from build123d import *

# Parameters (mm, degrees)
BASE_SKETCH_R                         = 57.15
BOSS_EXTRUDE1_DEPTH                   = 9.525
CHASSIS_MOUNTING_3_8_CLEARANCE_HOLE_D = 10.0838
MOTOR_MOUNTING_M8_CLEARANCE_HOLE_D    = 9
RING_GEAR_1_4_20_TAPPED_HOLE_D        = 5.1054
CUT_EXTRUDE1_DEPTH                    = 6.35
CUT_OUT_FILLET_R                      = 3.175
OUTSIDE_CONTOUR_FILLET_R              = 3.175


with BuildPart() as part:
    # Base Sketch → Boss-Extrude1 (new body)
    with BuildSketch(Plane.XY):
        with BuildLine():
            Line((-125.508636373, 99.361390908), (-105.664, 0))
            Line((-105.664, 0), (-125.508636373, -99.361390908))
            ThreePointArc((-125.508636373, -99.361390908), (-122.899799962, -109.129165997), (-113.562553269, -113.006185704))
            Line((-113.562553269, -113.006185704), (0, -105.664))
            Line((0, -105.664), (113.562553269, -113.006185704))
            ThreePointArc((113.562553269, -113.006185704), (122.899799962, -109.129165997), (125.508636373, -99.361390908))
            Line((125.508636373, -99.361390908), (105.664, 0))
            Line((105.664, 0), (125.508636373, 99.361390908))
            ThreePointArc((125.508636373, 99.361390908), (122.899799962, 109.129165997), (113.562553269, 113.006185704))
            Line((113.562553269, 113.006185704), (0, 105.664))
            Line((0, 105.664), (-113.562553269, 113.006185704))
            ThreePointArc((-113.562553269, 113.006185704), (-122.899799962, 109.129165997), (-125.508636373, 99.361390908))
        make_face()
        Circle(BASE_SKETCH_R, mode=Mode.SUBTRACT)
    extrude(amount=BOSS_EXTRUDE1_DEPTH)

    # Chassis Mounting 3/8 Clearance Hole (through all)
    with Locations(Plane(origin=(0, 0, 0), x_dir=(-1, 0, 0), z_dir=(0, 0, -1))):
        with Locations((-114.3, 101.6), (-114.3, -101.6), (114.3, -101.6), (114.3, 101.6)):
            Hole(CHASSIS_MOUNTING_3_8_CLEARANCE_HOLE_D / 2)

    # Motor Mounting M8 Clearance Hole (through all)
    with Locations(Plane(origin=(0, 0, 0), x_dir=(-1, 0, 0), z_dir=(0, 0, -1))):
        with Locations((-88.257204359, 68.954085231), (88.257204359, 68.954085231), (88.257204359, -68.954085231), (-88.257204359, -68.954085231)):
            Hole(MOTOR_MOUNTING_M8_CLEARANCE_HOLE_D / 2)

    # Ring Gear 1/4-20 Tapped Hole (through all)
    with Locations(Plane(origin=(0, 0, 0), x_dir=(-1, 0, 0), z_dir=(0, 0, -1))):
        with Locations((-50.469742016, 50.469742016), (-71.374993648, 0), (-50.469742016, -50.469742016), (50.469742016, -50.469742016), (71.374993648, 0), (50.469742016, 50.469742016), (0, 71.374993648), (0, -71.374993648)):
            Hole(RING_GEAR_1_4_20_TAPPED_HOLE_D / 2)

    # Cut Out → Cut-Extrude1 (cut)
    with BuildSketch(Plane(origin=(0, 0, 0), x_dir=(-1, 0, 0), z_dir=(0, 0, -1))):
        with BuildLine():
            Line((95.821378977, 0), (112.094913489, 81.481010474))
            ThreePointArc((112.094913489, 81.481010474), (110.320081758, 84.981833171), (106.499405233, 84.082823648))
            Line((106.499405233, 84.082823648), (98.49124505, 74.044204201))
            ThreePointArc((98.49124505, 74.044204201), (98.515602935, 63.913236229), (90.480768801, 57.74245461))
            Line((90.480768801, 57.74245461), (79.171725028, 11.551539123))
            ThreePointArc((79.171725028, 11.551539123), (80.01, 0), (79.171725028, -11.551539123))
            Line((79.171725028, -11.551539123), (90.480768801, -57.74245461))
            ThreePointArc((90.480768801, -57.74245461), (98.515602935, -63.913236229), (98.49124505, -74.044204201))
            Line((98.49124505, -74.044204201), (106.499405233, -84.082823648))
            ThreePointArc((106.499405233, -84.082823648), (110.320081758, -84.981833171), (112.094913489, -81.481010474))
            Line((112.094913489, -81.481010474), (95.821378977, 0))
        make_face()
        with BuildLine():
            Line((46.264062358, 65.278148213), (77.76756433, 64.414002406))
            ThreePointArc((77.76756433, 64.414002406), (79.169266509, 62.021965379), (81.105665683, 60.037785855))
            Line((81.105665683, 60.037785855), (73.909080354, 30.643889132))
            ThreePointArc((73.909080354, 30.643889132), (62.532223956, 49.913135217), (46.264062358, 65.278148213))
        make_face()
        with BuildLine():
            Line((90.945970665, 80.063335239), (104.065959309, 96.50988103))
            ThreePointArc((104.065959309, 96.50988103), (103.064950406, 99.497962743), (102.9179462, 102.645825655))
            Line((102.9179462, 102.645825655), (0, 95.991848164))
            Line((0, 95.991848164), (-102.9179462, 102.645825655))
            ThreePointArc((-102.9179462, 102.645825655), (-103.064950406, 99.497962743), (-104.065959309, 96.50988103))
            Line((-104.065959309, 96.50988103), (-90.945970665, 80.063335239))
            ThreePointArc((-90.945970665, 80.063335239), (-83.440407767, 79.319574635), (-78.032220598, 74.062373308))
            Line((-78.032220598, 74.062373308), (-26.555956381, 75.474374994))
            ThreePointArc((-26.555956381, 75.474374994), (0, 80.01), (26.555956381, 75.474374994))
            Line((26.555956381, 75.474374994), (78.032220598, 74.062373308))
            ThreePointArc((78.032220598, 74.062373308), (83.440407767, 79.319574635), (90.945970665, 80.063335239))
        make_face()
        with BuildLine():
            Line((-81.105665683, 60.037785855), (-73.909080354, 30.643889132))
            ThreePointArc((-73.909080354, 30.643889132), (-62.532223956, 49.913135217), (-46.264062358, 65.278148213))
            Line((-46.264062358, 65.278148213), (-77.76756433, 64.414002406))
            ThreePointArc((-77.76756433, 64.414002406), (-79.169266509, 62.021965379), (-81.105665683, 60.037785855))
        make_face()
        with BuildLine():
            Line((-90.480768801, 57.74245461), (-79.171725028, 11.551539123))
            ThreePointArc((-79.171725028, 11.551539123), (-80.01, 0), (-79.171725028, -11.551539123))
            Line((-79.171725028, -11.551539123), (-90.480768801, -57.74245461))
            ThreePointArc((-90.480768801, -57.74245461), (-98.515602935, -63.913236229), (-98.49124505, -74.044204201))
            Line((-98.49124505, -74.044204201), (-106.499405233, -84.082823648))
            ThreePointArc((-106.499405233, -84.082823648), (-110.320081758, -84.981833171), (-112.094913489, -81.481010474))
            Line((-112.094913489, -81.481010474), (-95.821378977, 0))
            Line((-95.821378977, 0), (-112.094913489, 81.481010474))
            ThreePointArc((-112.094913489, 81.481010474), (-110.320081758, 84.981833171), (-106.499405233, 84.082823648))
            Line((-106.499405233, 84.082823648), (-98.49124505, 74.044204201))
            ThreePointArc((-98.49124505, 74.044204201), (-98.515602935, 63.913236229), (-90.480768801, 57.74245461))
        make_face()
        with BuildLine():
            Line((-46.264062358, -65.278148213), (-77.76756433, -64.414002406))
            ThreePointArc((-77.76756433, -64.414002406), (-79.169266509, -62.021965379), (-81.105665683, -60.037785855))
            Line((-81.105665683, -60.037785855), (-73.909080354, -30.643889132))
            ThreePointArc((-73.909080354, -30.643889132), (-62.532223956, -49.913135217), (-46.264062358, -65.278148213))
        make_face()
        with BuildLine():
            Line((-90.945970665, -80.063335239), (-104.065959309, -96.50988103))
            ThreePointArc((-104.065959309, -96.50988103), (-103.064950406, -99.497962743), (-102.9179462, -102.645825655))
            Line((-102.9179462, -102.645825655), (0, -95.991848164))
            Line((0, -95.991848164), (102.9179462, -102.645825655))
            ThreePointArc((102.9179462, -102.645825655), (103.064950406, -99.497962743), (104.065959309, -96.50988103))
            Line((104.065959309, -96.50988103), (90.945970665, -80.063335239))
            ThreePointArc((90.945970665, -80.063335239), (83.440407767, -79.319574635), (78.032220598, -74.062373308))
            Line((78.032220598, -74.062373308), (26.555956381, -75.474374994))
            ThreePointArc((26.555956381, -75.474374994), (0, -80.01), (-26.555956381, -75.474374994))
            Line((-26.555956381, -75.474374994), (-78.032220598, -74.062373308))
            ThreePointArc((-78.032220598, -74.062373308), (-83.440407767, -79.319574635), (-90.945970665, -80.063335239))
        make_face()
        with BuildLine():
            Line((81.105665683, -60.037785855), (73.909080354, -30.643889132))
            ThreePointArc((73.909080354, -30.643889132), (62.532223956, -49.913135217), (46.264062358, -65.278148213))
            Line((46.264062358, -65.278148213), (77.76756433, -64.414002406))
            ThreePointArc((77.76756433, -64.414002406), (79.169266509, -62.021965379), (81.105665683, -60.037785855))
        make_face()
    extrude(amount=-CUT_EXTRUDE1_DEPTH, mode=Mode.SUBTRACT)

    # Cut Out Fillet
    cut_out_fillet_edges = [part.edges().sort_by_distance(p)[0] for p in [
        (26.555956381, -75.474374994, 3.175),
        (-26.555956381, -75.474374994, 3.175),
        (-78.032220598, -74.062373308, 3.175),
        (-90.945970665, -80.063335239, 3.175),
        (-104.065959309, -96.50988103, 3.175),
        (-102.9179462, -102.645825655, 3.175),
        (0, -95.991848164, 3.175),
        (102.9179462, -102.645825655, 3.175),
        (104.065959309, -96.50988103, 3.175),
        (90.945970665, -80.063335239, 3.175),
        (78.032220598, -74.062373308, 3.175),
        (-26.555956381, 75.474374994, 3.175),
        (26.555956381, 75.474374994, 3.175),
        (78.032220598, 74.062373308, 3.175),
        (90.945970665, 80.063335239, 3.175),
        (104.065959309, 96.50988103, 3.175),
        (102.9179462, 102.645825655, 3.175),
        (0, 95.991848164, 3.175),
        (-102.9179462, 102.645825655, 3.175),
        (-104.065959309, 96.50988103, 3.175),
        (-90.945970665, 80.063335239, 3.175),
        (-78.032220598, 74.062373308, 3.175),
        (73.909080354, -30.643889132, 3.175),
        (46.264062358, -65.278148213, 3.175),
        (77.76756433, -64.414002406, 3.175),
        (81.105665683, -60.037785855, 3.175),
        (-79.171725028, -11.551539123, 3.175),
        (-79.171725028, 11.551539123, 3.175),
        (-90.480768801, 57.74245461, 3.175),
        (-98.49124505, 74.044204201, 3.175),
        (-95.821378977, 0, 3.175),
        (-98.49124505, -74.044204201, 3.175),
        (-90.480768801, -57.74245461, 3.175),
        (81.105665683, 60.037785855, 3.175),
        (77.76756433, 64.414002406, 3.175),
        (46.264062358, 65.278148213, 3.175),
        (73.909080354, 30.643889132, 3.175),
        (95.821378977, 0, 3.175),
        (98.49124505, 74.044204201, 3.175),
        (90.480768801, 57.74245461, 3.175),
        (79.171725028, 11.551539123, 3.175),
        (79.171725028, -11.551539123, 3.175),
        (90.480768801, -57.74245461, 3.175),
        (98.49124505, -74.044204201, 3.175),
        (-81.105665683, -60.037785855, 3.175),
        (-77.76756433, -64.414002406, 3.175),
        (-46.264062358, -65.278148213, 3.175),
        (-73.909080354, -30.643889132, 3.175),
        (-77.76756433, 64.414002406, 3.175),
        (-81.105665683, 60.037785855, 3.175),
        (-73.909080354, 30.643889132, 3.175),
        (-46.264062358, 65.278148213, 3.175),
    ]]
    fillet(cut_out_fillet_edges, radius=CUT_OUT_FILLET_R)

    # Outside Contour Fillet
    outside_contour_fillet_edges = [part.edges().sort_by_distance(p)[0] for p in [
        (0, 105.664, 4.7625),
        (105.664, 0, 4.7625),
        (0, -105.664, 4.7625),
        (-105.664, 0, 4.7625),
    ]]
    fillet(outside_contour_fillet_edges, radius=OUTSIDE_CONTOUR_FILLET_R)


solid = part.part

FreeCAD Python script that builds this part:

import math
import FreeCAD as App
import Part
import Sketcher
from FreeCAD import Vector
Q = App.Units.Quantity


def edges_at(feature, points):
    """Names of the edges that pass closest to the given points."""
    edges = feature.Shape.Edges
    near = lambda p: min(range(len(edges)), key=lambda i: edges[i].distToShape(Part.Vertex(*p))[0])
    return sorted({f"Edge{near(p) + 1}" for p in points})

doc = App.newDocument("Part")
params = doc.addObject("Spreadsheet::Sheet", "Params")
for row, (alias, value) in enumerate([
    ("sketch1_diameter", "4.5 in"),
    ("sketch1_radius", "0.45 in"),
    ("pad1_length", "0.375 in"),
    ("sketch2_diameter", "0.397 in"),
    ("hole_diameter", "0.397 in"),
    ("hole2_diameter", "9 mm"),
    ("sketch4_diameter", "0.201 in"),
    ("hole3_diameter", "0.201 in"),
    ("sketch5_radius", "0.45 in"),
    ("sketch5_radius2", "3.15 in"),
    ("sketch5_radius3", "0.125 in"),
    ("pocket1_length", "0.25 in"),
    ("fillet_radius", "0.125 in"),
    ("fillet2_radius", "0.125 in"),
], start=1):
    params.set(f"A{row}", alias)
    params.set(f"B{row}", "=" + value)
    params.setAlias(f"B{row}", alias)

body = doc.addObject("PartDesign::Body", "Body")

# Sketch on XY plane
sketch1 = body.newObject("Sketcher::SketchObject", "Sketch")
sketch1.AttachmentSupport = (doc.getObject("XY_Plane"), [""])
sketch1.MapMode = "FlatFace"
sketch1.addGeometry([
    Part.LineSegment(Vector(-125.508636, 99.361391, 0), Vector(-105.664, 0, 0)),  # 0
    Part.LineSegment(Vector(-105.664, 0, 0), Vector(-125.508636, -99.361391, 0)),  # 1
    Part.ArcOfCircle(Part.Circle(Vector(-114.3, -101.6, 0), Vector(0, 0, 1), 11.43), math.radians(168.705395), math.radians(273.699209)),  # 2
    Part.LineSegment(Vector(-113.562553, -113.006186, 0), Vector(0, -105.664, 0)),  # 3
    Part.LineSegment(Vector(0, -105.664, 0), Vector(113.562553, -113.006186, 0)),  # 4
    Part.ArcOfCircle(Part.Circle(Vector(114.3, -101.6, 0), Vector(0, 0, 1), 11.43), math.radians(-93.699209), math.radians(11.294605)),  # 5
    Part.LineSegment(Vector(125.508636, -99.361391, 0), Vector(105.664, 0, 0)),  # 6
    Part.LineSegment(Vector(105.664, 0, 0), Vector(125.508636, 99.361391, 0)),  # 7
    Part.ArcOfCircle(Part.Circle(Vector(114.3, 101.6, 0), Vector(0, 0, 1), 11.43), math.radians(-11.294605), math.radians(93.699209)),  # 8
    Part.LineSegment(Vector(113.562553, 113.006186, 0), Vector(0, 105.664, 0)),  # 9
    Part.LineSegment(Vector(0, 105.664, 0), Vector(-113.562553, 113.006186, 0)),  # 10
    Part.ArcOfCircle(Part.Circle(Vector(-114.3, 101.6, 0), Vector(0, 0, 1), 11.43), math.radians(86.300791), math.radians(191.294605)),  # 11
    Part.Circle(Vector(0, 0, 0), Vector(0, 0, 1), 57.15),  # 12
], False)
sketch1.addConstraint([
    Sketcher.Constraint("Coincident", 0, 2, 1, 1),
    Sketcher.Constraint("Tangent", 1, 2, 2, 1),
    Sketcher.Constraint("Tangent", 2, 2, 3, 1),
    Sketcher.Constraint("Coincident", 3, 2, 4, 1),
    Sketcher.Constraint("Tangent", 4, 2, 5, 1),
    Sketcher.Constraint("Tangent", 5, 2, 6, 1),
    Sketcher.Constraint("Coincident", 6, 2, 7, 1),
    Sketcher.Constraint("Tangent", 7, 2, 8, 1),
    Sketcher.Constraint("Tangent", 8, 2, 9, 1),
    Sketcher.Constraint("Coincident", 9, 2, 10, 1),
    Sketcher.Constraint("Tangent", 10, 2, 11, 1),
    Sketcher.Constraint("Tangent", 11, 2, 0, 1),
    Sketcher.Constraint("Coincident", 12, 3, -1, 1),
    Sketcher.Constraint("Equal", 2, 5),
    Sketcher.Constraint("Equal", 5, 8),
    Sketcher.Constraint("Equal", 8, 11),
    Sketcher.Constraint("Symmetric", 2, 3, 8, 3, -1, 1),
    Sketcher.Constraint("Symmetric", 5, 3, 11, 3, -1, 1),
    Sketcher.Constraint("Symmetric", 0, 2, 6, 2, -1, 1),
    Sketcher.Constraint("Symmetric", 3, 2, 9, 2, -1, 1),
    Sketcher.Constraint("Symmetric", 2, 3, 5, 3, -2),
    Sketcher.Constraint("PointOnObject", 0, 2, -1),
    Sketcher.Constraint("PointOnObject", 3, 2, -2),
    Sketcher.Constraint("Diameter", 12, Q("4.5 in")),
    Sketcher.Constraint("Radius", 2, Q("0.45 in")),
    Sketcher.Constraint("DistanceY", 2, 3, -1, 1, Q("4 in")),
    Sketcher.Constraint("DistanceX", 2, 3, 5, 3, Q("9 in")),
    Sketcher.Constraint("DistanceX", 0, 2, -1, 1, Q("4.16 in")),
    Sketcher.Constraint("DistanceY", 3, 2, -1, 1, Q("4.16 in")),
])
sketch1.setExpression("Constraints[23]", "Params.sketch1_diameter")
sketch1.setExpression("Constraints[24]", "Params.sketch1_radius")
pad1 = body.newObject("PartDesign::Pad", "Pad")
pad1.Profile = sketch1
pad1.setExpression("Length", "Params.pad1_length")

# Sketch on XY plane
sketch2 = body.newObject("Sketcher::SketchObject", "Sketch001")
sketch2.AttachmentSupport = (doc.getObject("XY_Plane"), [""])
sketch2.MapMode = "FlatFace"
sketch2.addGeometry([
    Part.Circle(Vector(114.3, 101.6, 0), Vector(0, 0, 1), 5.0419),
    Part.Circle(Vector(114.3, -101.6, 0), Vector(0, 0, 1), 5.0419),
    Part.Circle(Vector(-114.3, -101.6, 0), Vector(0, 0, 1), 5.0419),
    Part.Circle(Vector(-114.3, 101.6, 0), Vector(0, 0, 1), 5.0419),
], False)
sketch2.addConstraint([
    Sketcher.Constraint("Equal", 0, 1),
    Sketcher.Constraint("Equal", 1, 2),
    Sketcher.Constraint("Equal", 2, 3),
    Sketcher.Constraint("Symmetric", 0, 3, 2, 3, -1, 1),
    Sketcher.Constraint("Symmetric", 1, 3, 3, 3, -1, 1),
    Sketcher.Constraint("Symmetric", 1, 3, 2, 3, -2),
    Sketcher.Constraint("Diameter", 0, Q("0.397 in")),
    Sketcher.Constraint("DistanceY", -1, 1, 0, 3, Q("4 in")),
    Sketcher.Constraint("DistanceX", 2, 3, 1, 3, Q("9 in")),
])
sketch2.setExpression("Constraints[6]", "Params.sketch2_diameter")
doc.recompute()
hole = body.newObject("PartDesign::Hole", "Hole")
hole.Profile = sketch2
hole.ThreadType = "None"
hole.setExpression("Diameter", "Params.hole_diameter")
hole.DepthType = "ThroughAll"
hole.Reversed = True

# Sketch on XY plane
sketch3 = body.newObject("Sketcher::SketchObject", "Sketch002")
sketch3.AttachmentSupport = (doc.getObject("XY_Plane"), [""])
sketch3.MapMode = "FlatFace"
sketch3.addGeometry([
    Part.Circle(Vector(88.257204, 68.954085, 0), Vector(0, 0, 1), 4.5),
    Part.Circle(Vector(-88.257204, 68.954085, 0), Vector(0, 0, 1), 4.5),
    Part.Circle(Vector(-88.257204, -68.954085, 0), Vector(0, 0, 1), 4.5),
    Part.Circle(Vector(88.257204, -68.954085, 0), Vector(0, 0, 1), 4.5),
], False)
sketch3.addConstraint([
    Sketcher.Constraint("Equal", 0, 1),
    Sketcher.Constraint("Equal", 1, 2),
    Sketcher.Constraint("Equal", 2, 3),
    Sketcher.Constraint("Symmetric", 0, 3, 2, 3, -1, 1),
    Sketcher.Constraint("Symmetric", 1, 3, 3, 3, -1, 1),
    Sketcher.Constraint("Symmetric", 0, 3, 1, 3, -2),
    Sketcher.Constraint("Diameter", 0, 9.0),
    Sketcher.Constraint("DistanceX", 1, 3, 0, 3, 176.514409),
    Sketcher.Constraint("DistanceY", 2, 3, 1, 3, 137.90817),
])
doc.recompute()
hole2 = body.newObject("PartDesign::Hole", "Hole001")
hole2.Profile = sketch3
hole2.ThreadType = "None"
hole2.setExpression("Diameter", "Params.hole2_diameter")
hole2.DepthType = "ThroughAll"
hole2.Reversed = True

# Sketch on XY plane
sketch4 = body.newObject("Sketcher::SketchObject", "Sketch003")
sketch4.AttachmentSupport = (doc.getObject("XY_Plane"), [""])
sketch4.MapMode = "FlatFace"
sketch4.addGeometry([
    Part.Circle(Vector(50.469742, 50.469742, 0), Vector(0, 0, 1), 2.5527),  # 0
    Part.Circle(Vector(71.374994, 0, 0), Vector(0, 0, 1), 2.5527),  # 1
    Part.Circle(Vector(50.469742, -50.469742, 0), Vector(0, 0, 1), 2.5527),  # 2
    Part.Circle(Vector(-50.469742, -50.469742, 0), Vector(0, 0, 1), 2.5527),  # 3
    Part.Circle(Vector(-71.374994, 0, 0), Vector(0, 0, 1), 2.5527),  # 4
    Part.Circle(Vector(-50.469742, 50.469742, 0), Vector(0, 0, 1), 2.5527),  # 5
    Part.Circle(Vector(0, 71.374994, 0), Vector(0, 0, 1), 2.5527),  # 6
    Part.Circle(Vector(0, -71.374994, 0), Vector(0, 0, 1), 2.5527),  # 7
], False)
sketch4.addConstraint([
    Sketcher.Constraint("Equal", 0, 1),
    Sketcher.Constraint("Equal", 1, 2),
    Sketcher.Constraint("Equal", 2, 3),
    Sketcher.Constraint("Equal", 3, 4),
    Sketcher.Constraint("Equal", 4, 5),
    Sketcher.Constraint("Equal", 5, 6),
    Sketcher.Constraint("Equal", 6, 7),
    Sketcher.Constraint("Symmetric", 0, 3, 3, 3, -1, 1),
    Sketcher.Constraint("Symmetric", 1, 3, 4, 3, -1, 1),
    Sketcher.Constraint("Symmetric", 2, 3, 5, 3, -1, 1),
    Sketcher.Constraint("Symmetric", 6, 3, 7, 3, -1, 1),
    Sketcher.Constraint("Symmetric", 2, 3, 3, 3, -2),
    Sketcher.Constraint("PointOnObject", 1, 3, -1),
    Sketcher.Constraint("PointOnObject", 6, 3, -2),
    Sketcher.Constraint("Diameter", 0, Q("0.201 in")),
    Sketcher.Constraint("DistanceX", 0, 3, 1, 3, 20.905252),
    Sketcher.Constraint("DistanceY", 0, 3, 6, 3, 20.905252),
    Sketcher.Constraint("DistanceX", -1, 1, 0, 3, 50.469742),
    Sketcher.Constraint("DistanceY", -1, 1, 0, 3, 50.469742),
])
sketch4.setExpression("Constraints[14]", "Params.sketch4_diameter")
doc.recompute()
hole3 = body.newObject("PartDesign::Hole", "Hole002")
hole3.Profile = sketch4
hole3.ThreadType = "None"
hole3.setExpression("Diameter", "Params.hole3_diameter")
hole3.DepthType = "ThroughAll"
hole3.Reversed = True

# Sketch on XY plane
sketch5 = body.newObject("Sketcher::SketchObject", "Sketch004")
sketch5.AttachmentSupport = (doc.getObject("XY_Plane"), [""])
sketch5.MapMode = "FlatFace"
sketch5.addGeometry([
    Part.LineSegment(Vector(-95.821379, 0, 0), Vector(-112.094913, 81.48101, 0)),  # 0
    Part.ArcOfCircle(Part.Circle(Vector(-108.981403, 82.102846, 0), Vector(0, 0, 1), 3.175), math.radians(38.580597), math.radians(191.294605)),  # 1
    Part.LineSegment(Vector(-106.499405, 84.082824, 0), Vector(-98.491245, 74.044204, 0)),  # 2
    Part.ArcOfCircle(Part.Circle(Vector(-88.257204, 68.954085, 0), Vector(0, 0, 1), 11.43), math.radians(153.555562), math.radians(258.782289)),  # 3
    Part.LineSegment(Vector(-90.480769, 57.742455, 0), Vector(-79.171725, 11.551539, 0)),  # 4
    Part.ArcOfCircle(Part.Circle(Vector(0, 0, 0), Vector(0, 0, 1), 80.01), math.radians(171.698842), math.radians(188.301158)),  # 5
    Part.LineSegment(Vector(-79.171725, -11.551539, 0), Vector(-90.480769, -57.742455, 0)),  # 6
    Part.ArcOfCircle(Part.Circle(Vector(-88.257204, -68.954085, 0), Vector(0, 0, 1), 11.43), math.radians(101.217711), math.radians(206.444438)),  # 7
    Part.LineSegment(Vector(-98.491245, -74.044204, 0), Vector(-106.499405, -84.082824, 0)),  # 8
    Part.ArcOfCircle(Part.Circle(Vector(-108.981403, -82.102846, 0), Vector(0, 0, 1), 3.175), math.radians(168.705395), math.radians(321.419403)),  # 9
    Part.LineSegment(Vector(-112.094913, -81.48101, 0), Vector(-95.821379, 0, 0)),  # 10
    Part.LineSegment(Vector(-77.767564, 64.414002, 0), Vector(-46.264062, 65.278148, 0)),  # 11
    Part.ArcOfCircle(Part.Circle(Vector(0, 0, 0), Vector(0, 0, 1), 80.01), math.radians(125.326041), math.radians(157.48032)),  # 12
    Part.LineSegment(Vector(-73.90908, 30.643889, 0), Vector(-81.105666, 60.037786, 0)),  # 13
    Part.ArcOfCircle(Part.Circle(Vector(-88.257204, 68.954085, 0), Vector(0, 0, 1), 11.43), math.radians(-51.26778), math.radians(-23.403727)),  # 14
    Part.LineSegment(Vector(-90.945971, 80.063335, 0), Vector(-104.065959, 96.509881, 0)),  # 15
    Part.ArcOfCircle(Part.Circle(Vector(-114.3, 101.6, 0), Vector(0, 0, 1), 11.43), math.radians(-26.444438), math.radians(5.249809)),  # 16
    Part.LineSegment(Vector(-102.917946, 102.645826, 0), Vector(0, 95.991848, 0)),  # 17
    Part.LineSegment(Vector(0, 95.991848, 0), Vector(102.917946, 102.645826, 0)),  # 18
    Part.ArcOfCircle(Part.Circle(Vector(114.3, 101.6, 0), Vector(0, 0, 1), 11.43), math.radians(174.750191), math.radians(206.444438)),  # 19
    Part.LineSegment(Vector(104.065959, 96.509881, 0), Vector(90.945971, 80.063335, 0)),  # 20
    Part.ArcOfCircle(Part.Circle(Vector(88.257204, 68.954085, 0), Vector(0, 0, 1), 11.43), math.radians(76.394368), math.radians(153.453797)),  # 21
    Part.LineSegment(Vector(78.032221, 74.062373, 0), Vector(26.555956, 75.474375, 0)),  # 22
    Part.ArcOfCircle(Part.Circle(Vector(0, 0, 0), Vector(0, 0, 1), 80.01), math.radians(70.615378), math.radians(109.384622)),  # 23
    Part.LineSegment(Vector(-26.555956, 75.474375, 0), Vector(-78.032221, 74.062373, 0)),  # 24
    Part.ArcOfCircle(Part.Circle(Vector(-88.257204, 68.954085, 0), Vector(0, 0, 1), 11.43), math.radians(26.546203), math.radians(103.605632)),  # 25
    Part.LineSegment(Vector(81.105666, 60.037786, 0), Vector(73.90908, 30.643889, 0)),  # 26
    Part.ArcOfCircle(Part.Circle(Vector(0, 0, 0), Vector(0, 0, 1), 80.01), math.radians(22.51968), math.radians(54.673959)),  # 27
    Part.LineSegment(Vector(46.264062, 65.278148, 0), Vector(77.767564, 64.414002, 0)),  # 28
    Part.ArcOfCircle(Part.Circle(Vector(88.257204, 68.954085, 0), Vector(0, 0, 1), 11.43), math.radians(-156.596273), math.radians(-128.73222)),  # 29
    Part.LineSegment(Vector(79.171725, 11.551539, 0), Vector(90.480769, 57.742455, 0)),  # 30
    Part.ArcOfCircle(Part.Circle(Vector(88.257204, 68.954085, 0), Vector(0, 0, 1), 11.43), math.radians(-78.782289), math.radians(26.444438)),  # 31
    Part.LineSegment(Vector(98.491245, 74.044204, 0), Vector(106.499405, 84.082824, 0)),  # 32
    Part.ArcOfCircle(Part.Circle(Vector(108.981403, 82.102846, 0), Vector(0, 0, 1), 3.175), math.radians(-11.294605), math.radians(141.419403)),  # 33
    Part.LineSegment(Vector(112.094913, 81.48101, 0), Vector(95.821379, 0, 0)),  # 34
    Part.LineSegment(Vector(95.821379, 0, 0), Vector(112.094913, -81.48101, 0)),  # 35
    Part.ArcOfCircle(Part.Circle(Vector(108.981403, -82.102846, 0), Vector(0, 0, 1), 3.175), math.radians(-141.419403), math.radians(11.294605)),  # 36
    Part.LineSegment(Vector(106.499405, -84.082824, 0), Vector(98.491245, -74.044204, 0)),  # 37
    Part.ArcOfCircle(Part.Circle(Vector(88.257204, -68.954085, 0), Vector(0, 0, 1), 11.43), math.radians(-26.444438), math.radians(78.782289)),  # 38
    Part.LineSegment(Vector(90.480769, -57.742455, 0), Vector(79.171725, -11.551539, 0)),  # 39
    Part.ArcOfCircle(Part.Circle(Vector(0, 0, 0), Vector(0, 0, 1), 80.01), math.radians(-8.301158), math.radians(8.301158)),  # 40
    Part.LineSegment(Vector(77.767564, -64.414002, 0), Vector(46.264062, -65.278148, 0)),  # 41
    Part.ArcOfCircle(Part.Circle(Vector(0, 0, 0), Vector(0, 0, 1), 80.01), math.radians(-54.673959), math.radians(-22.51968)),  # 42
    Part.LineSegment(Vector(73.90908, -30.643889, 0), Vector(81.105666, -60.037786, 0)),  # 43
    Part.ArcOfCircle(Part.Circle(Vector(88.257204, -68.954085, 0), Vector(0, 0, 1), 11.43), math.radians(128.73222), math.radians(156.596273)),  # 44
    Part.LineSegment(Vector(90.945971, -80.063335, 0), Vector(104.065959, -96.509881, 0)),  # 45
    Part.ArcOfCircle(Part.Circle(Vector(114.3, -101.6, 0), Vector(0, 0, 1), 11.43), math.radians(153.555562), math.radians(185.249809)),  # 46
    Part.LineSegment(Vector(102.917946, -102.645826, 0), Vector(0, -95.991848, 0)),  # 47
    Part.LineSegment(Vector(0, -95.991848, 0), Vector(-102.917946, -102.645826, 0)),  # 48
    Part.ArcOfCircle(Part.Circle(Vector(-114.3, -101.6, 0), Vector(0, 0, 1), 11.43), math.radians(-5.249809), math.radians(26.444438)),  # 49
    Part.LineSegment(Vector(-104.065959, -96.509881, 0), Vector(-90.945971, -80.063335, 0)),  # 50
    Part.ArcOfCircle(Part.Circle(Vector(-88.257204, -68.954085, 0), Vector(0, 0, 1), 11.43), math.radians(-103.605632), math.radians(-26.546203)),  # 51
    Part.LineSegment(Vector(-78.032221, -74.062373, 0), Vector(-26.555956, -75.474375, 0)),  # 52
    Part.ArcOfCircle(Part.Circle(Vector(0, 0, 0), Vector(0, 0, 1), 80.01), math.radians(-109.384622), math.radians(-70.615378)),  # 53
    Part.LineSegment(Vector(26.555956, -75.474375, 0), Vector(78.032221, -74.062373, 0)),  # 54
    Part.ArcOfCircle(Part.Circle(Vector(88.257204, -68.954085, 0), Vector(0, 0, 1), 11.43), math.radians(-153.453797), math.radians(-76.394368)),  # 55
    Part.LineSegment(Vector(-81.105666, -60.037786, 0), Vector(-73.90908, -30.643889, 0)),  # 56
    Part.ArcOfCircle(Part.Circle(Vector(0, 0, 0), Vector(0, 0, 1), 80.01), math.radians(-157.48032), math.radians(-125.326041)),  # 57
    Part.LineSegment(Vector(-46.264062, -65.278148, 0), Vector(-77.767564, -64.414002, 0)),  # 58
    Part.ArcOfCircle(Part.Circle(Vector(-88.257204, -68.954085, 0), Vector(0, 0, 1), 11.43), math.radians(23.403727), math.radians(51.26778)),  # 59
], False)
sketch5.addConstraint([
    Sketcher.Constraint("Tangent", 0, 2, 1, 2),
    Sketcher.Constraint("Tangent", 1, 1, 2, 1),
    Sketcher.Constraint("Coincident", 2, 2, 3, 1),
    Sketcher.Constraint("Coincident", 3, 2, 4, 1),
    Sketcher.Constraint("Coincident", 4, 2, 5, 1),
    Sketcher.Constraint("Coincident", 5, 2, 6, 1),
    Sketcher.Constraint("Coincident", 6, 2, 7, 1),
    Sketcher.Constraint("Coincident", 7, 2, 8, 1),
    Sketcher.Constraint("Tangent", 8, 2, 9, 2),
    Sketcher.Constraint("Tangent", 9, 1, 10, 1),
    Sketcher.Constraint("Coincident", 10, 2, 0, 1),
    Sketcher.Constraint("Coincident", 11, 2, 12, 1),
    Sketcher.Constraint("Coincident", 12, 2, 13, 1),
    Sketcher.Constraint("Coincident", 13, 2, 14, 1),
    Sketcher.Constraint("Coincident", 14, 2, 11, 1),
    Sketcher.Constraint("Coincident", 15, 2, 16, 1),
    Sketcher.Constraint("Coincident", 16, 2, 17, 1),
    Sketcher.Constraint("Coincident", 17, 2, 18, 1),
    Sketcher.Constraint("Coincident", 18, 2, 19, 1),
    Sketcher.Constraint("Coincident", 19, 2, 20, 1),
    Sketcher.Constraint("Coincident", 20, 2, 21, 1),
    Sketcher.Constraint("Coincident", 21, 2, 22, 1),
    Sketcher.Constraint("Coincident", 22, 2, 23, 1),
    Sketcher.Constraint("Coincident", 23, 2, 24, 1),
    Sketcher.Constraint("Coincident", 24, 2, 25, 1),
    Sketcher.Constraint("Coincident", 25, 2, 15, 1),
    Sketcher.Constraint("Coincident", 26, 2, 27, 1),
    Sketcher.Constraint("Coincident", 27, 2, 28, 1),
    Sketcher.Constraint("Coincident", 28, 2, 29, 1),
    Sketcher.Constraint("Coincident", 29, 2, 26, 1),
    Sketcher.Constraint("Coincident", 30, 2, 31, 1),
    Sketcher.Constraint("Coincident", 31, 2, 32, 1),
    Sketcher.Constraint("Tangent", 32, 2, 33, 2),
    Sketcher.Constraint("Tangent", 33, 1, 34, 1),
    Sketcher.Constraint("Coincident", 34, 2, 35, 1),
    Sketcher.Constraint("Tangent", 35, 2, 36, 2),
    Sketcher.Constraint("Tangent", 36, 1, 37, 1),
    Sketcher.Constraint("Coincident", 37, 2, 38, 1),
    Sketcher.Constraint("Coincident", 38, 2, 39, 1),
    Sketcher.Constraint("Coincident", 39, 2, 40, 1),
    Sketcher.Constraint("Coincident", 40, 2, 30, 1),
    Sketcher.Constraint("Coincident", 41, 2, 42, 1),
    Sketcher.Constraint("Coincident", 42, 2, 43, 1),
    Sketcher.Constraint("Coincident", 43, 2, 44, 1),
    Sketcher.Constraint("Coincident", 44, 2, 41, 1),
    Sketcher.Constraint("Coincident", 45, 2, 46, 1),
    Sketcher.Constraint("Coincident", 46, 2, 47, 1),
    Sketcher.Constraint("Coincident", 47, 2, 48, 1),
    Sketcher.Constraint("Coincident", 48, 2, 49, 1),
    Sketcher.Constraint("Coincident", 49, 2, 50, 1),
    Sketcher.Constraint("Coincident", 50, 2, 51, 1),
    Sketcher.Constraint("Coincident", 51, 2, 52, 1),
    Sketcher.Constraint("Coincident", 52, 2, 53, 1),
    Sketcher.Constraint("Coincident", 53, 2, 54, 1),
    Sketcher.Constraint("Coincident", 54, 2, 55, 1),
    Sketcher.Constraint("Coincident", 55, 2, 45, 1),
    Sketcher.Constraint("Coincident", 56, 2, 57, 1),
    Sketcher.Constraint("Coincident", 57, 2, 58, 1),
    Sketcher.Constraint("Coincident", 58, 2, 59, 1),
    Sketcher.Constraint("Coincident", 59, 2, 56, 1),
    Sketcher.Constraint("Coincident", 5, 3, -1, 1),
    Sketcher.Constraint("Coincident", 12, 3, -1, 1),
    Sketcher.Constraint("Coincident", 23, 3, -1, 1),
    Sketcher.Constraint("Coincident", 27, 3, -1, 1),
    Sketcher.Constraint("Coincident", 40, 3, -1, 1),
    Sketcher.Constraint("Coincident", 42, 3, -1, 1),
    Sketcher.Constraint("Coincident", 53, 3, -1, 1),
    Sketcher.Constraint("Coincident", 57, 3, -1, 1),
    Sketcher.Constraint("Coincident", 14, 3, 3, 3),
    Sketcher.Constraint("Coincident", 25, 3, 3, 3),
    Sketcher.Constraint("Coincident", 29, 3, 21, 3),
    Sketcher.Constraint("Coincident", 31, 3, 21, 3),
    Sketcher.Constraint("Coincident", 44, 3, 38, 3),
    Sketcher.Constraint("Coincident", 51, 3, 7, 3),
    Sketcher.Constraint("Coincident", 55, 3, 38, 3),
    Sketcher.Constraint("Coincident", 59, 3, 7, 3),
    Sketcher.Constraint("Equal", 3, 7),
    Sketcher.Constraint("Equal", 1, 9),
    Sketcher.Constraint("Equal", 5, 12),
    Sketcher.Constraint("Equal", 7, 14),
    Sketcher.Constraint("Equal", 14, 16),
    Sketcher.Constraint("Equal", 16, 19),
    Sketcher.Constraint("Equal", 19, 21),
    Sketcher.Constraint("Equal", 12, 23),
    Sketcher.Constraint("Equal", 21, 25),
    Sketcher.Constraint("Equal", 23, 27),
    Sketcher.Constraint("Equal", 25, 29),
    Sketcher.Constraint("Equal", 29, 31),
    Sketcher.Constraint("Equal", 9, 33),
    Sketcher.Constraint("Equal", 33, 36),
    Sketcher.Constraint("Equal", 31, 38),
    Sketcher.Constraint("Equal", 27, 40),
    Sketcher.Constraint("Equal", 40, 42),
    Sketcher.Constraint("Equal", 38, 44),
    Sketcher.Constraint("Equal", 44, 46),
    Sketcher.Constraint("Equal", 46, 49),
    Sketcher.Constraint("Equal", 49, 51),
    Sketcher.Constraint("Equal", 42, 53),
    Sketcher.Constraint("Equal", 51, 55),
    Sketcher.Constraint("Equal", 53, 57),
    Sketcher.Constraint("Equal", 55, 59),
    Sketcher.Constraint("Symmetric", 7, 3, 21, 3, -1, 1),
    Sketcher.Constraint("Symmetric", 9, 3, 33, 3, -1, 1),
    Sketcher.Constraint("Symmetric", 1, 3, 36, 3, -1, 1),
    Sketcher.Constraint("Symmetric", 3, 3, 38, 3, -1, 1),
    Sketcher.Constraint("Symmetric", 16, 3, 46, 3, -1, 1),
    Sketcher.Constraint("Symmetric", 19, 3, 49, 3, -1, 1),
    Sketcher.Constraint("Symmetric", 10, 2, 34, 2, -1, 1),
    Sketcher.Constraint("Symmetric", 17, 2, 47, 2, -1, 1),
    Sketcher.Constraint("Symmetric", 16, 3, 19, 3, -2),
    Sketcher.Constraint("Symmetric", 3, 3, 21, 3, -2),
    Sketcher.Constraint("Symmetric", 1, 3, 33, 3, -2),
    Sketcher.Constraint("PointOnObject", 10, 2, -1),
    Sketcher.Constraint("PointOnObject", 17, 2, -2),
    Sketcher.Constraint("Parallel", 4, 13),
    Sketcher.Constraint("Parallel", 2, 15),
    Sketcher.Constraint("Parallel", 8, 20),
    Sketcher.Constraint("Parallel", 11, 24),
    Sketcher.Constraint("Parallel", 6, 26),
    Sketcher.Constraint("Parallel", 22, 28),
    Sketcher.Constraint("Parallel", 26, 30),
    Sketcher.Constraint("Parallel", 20, 32),
    Sketcher.Constraint("Parallel", 15, 37),
    Sketcher.Constraint("Parallel", 13, 39),
    Sketcher.Constraint("Parallel", 24, 41),
    Sketcher.Constraint("Parallel", 39, 43),
    Sketcher.Constraint("Parallel", 37, 45),
    Sketcher.Constraint("Parallel", 17, 47),
    Sketcher.Constraint("Parallel", 18, 48),
    Sketcher.Constraint("Parallel", 32, 50),
    Sketcher.Constraint("Parallel", 28, 52),
    Sketcher.Constraint("Parallel", 41, 54),
    Sketcher.Constraint("Parallel", 30, 56),
    Sketcher.Constraint("Parallel", 52, 58),
    Sketcher.Constraint("Horizontal", 16, 2, 18, 2),
    Sketcher.Constraint("Horizontal", 15, 2, 19, 2),
    Sketcher.Constraint("Horizontal", 22, 2, 23, 2),
    Sketcher.Constraint("Horizontal", 21, 2, 24, 2),
    Sketcher.Constraint("Horizontal", 20, 2, 25, 2),
    Sketcher.Constraint("Horizontal", 12, 2, 26, 2),
    Sketcher.Constraint("Horizontal", 11, 2, 27, 2),
    Sketcher.Constraint("Horizontal", 13, 2, 29, 2),
    Sketcher.Constraint("Horizontal", 3, 2, 30, 2),
    Sketcher.Constraint("Horizontal", 6, 2, 38, 2),
    Sketcher.Constraint("Horizontal", 45, 2, 49, 2),
    Sketcher.Constraint("Horizontal", 52, 2, 53, 2),
    Sketcher.Constraint("Horizontal", 42, 2, 56, 2),
    Sketcher.Constraint("Horizontal", 41, 2, 57, 2),
    Sketcher.Constraint("Vertical", 4, 2, 5, 2),
    Sketcher.Constraint("Vertical", 27, 2, 41, 2),
    Sketcher.Constraint("Vertical", 26, 2, 42, 2),
    Sketcher.Constraint("Vertical", 19, 2, 45, 2),
    Sketcher.Constraint("Vertical", 24, 2, 51, 2),
    Sketcher.Constraint("Radius", 3, Q("0.45 in")),
    Sketcher.Constraint("Radius", 5, Q("3.15 in")),
    Sketcher.Constraint("DistanceY", -1, 1, 16, 3, Q("4 in")),
    Sketcher.Constraint("Radius", 1, Q("0.125 in")),
    Sketcher.Constraint("DistanceX", 16, 3, -1, 1, Q("4.5 in")),
    Sketcher.Constraint("DistanceY", -1, 1, 20, 2, Q("3.1520998 in")),
    Sketcher.Constraint("Distance", 0, 83.09021),
    Sketcher.Constraint("Distance", 4, 47.55518),
    Sketcher.Constraint("Distance", 11, 31.515352),
    Sketcher.Constraint("DistanceY", -1, 1, 0, 2, 81.48101),
    Sketcher.Constraint("DistanceX", 3, 2, -1, 1, 90.480769),
    Sketcher.Constraint("DistanceY", -1, 1, 4, 2, 11.551539),
    Sketcher.Constraint("DistanceX", 10, 2, -1, 1, 95.821379),
    Sketcher.Constraint("DistanceY", -1, 1, 11, 2, 65.278148),
    Sketcher.Constraint("DistanceX", 12, 2, -1, 1, 73.90908),
    Sketcher.Constraint("DistanceX", 15, 2, -1, 1, 104.065959),
    Sketcher.Constraint("DistanceY", -1, 1, 17, 2, 95.991848),
    Sketcher.Constraint("DistanceX", -1, 1, 20, 2, 90.945971),
    Sketcher.Constraint("DistanceX", -1, 1, 21, 2, 78.032221),
    Sketcher.Constraint("Distance", 17, 103.132822),
])
sketch5.setExpression("Constraints[153]", "Params.sketch5_radius")
sketch5.setExpression("Constraints[154]", "Params.sketch5_radius2")
sketch5.setExpression("Constraints[156]", "Params.sketch5_radius3")
pocket1 = body.newObject("PartDesign::Pocket", "Pocket")
pocket1.Profile = sketch5
pocket1.setExpression("Length", "Params.pocket1_length")
pocket1.Reversed = True
doc.recompute()

fillet = body.newObject("PartDesign::Fillet", "Fillet")
fillet.Base = (pocket1, edges_at(pocket1, [
    (26.556, -75.474, 3.175),
    (-26.556, -75.474, 3.175),
    (-78.032, -74.062, 3.175),
    (-90.946, -80.063, 3.175),
    (-104.066, -96.51, 3.175),
    (-102.918, -102.646, 3.175),
    (0, -95.992, 3.175),
    (102.918, -102.646, 3.175),
    (104.066, -96.51, 3.175),
    (90.946, -80.063, 3.175),
    (78.032, -74.062, 3.175),
    (-26.556, 75.474, 3.175),
    (26.556, 75.474, 3.175),
    (78.032, 74.062, 3.175),
    (90.946, 80.063, 3.175),
    (104.066, 96.51, 3.175),
    (102.918, 102.646, 3.175),
    (0, 95.992, 3.175),
    (-102.918, 102.646, 3.175),
    (-104.066, 96.51, 3.175),
    (-90.946, 80.063, 3.175),
    (-78.032, 74.062, 3.175),
    (73.909, -30.644, 3.175),
    (46.264, -65.278, 3.175),
    (77.768, -64.414, 3.175),
    (81.106, -60.038, 3.175),
    (-79.172, -11.552, 3.175),
    (-79.172, 11.552, 3.175),
    (-90.481, 57.742, 3.175),
    (-98.491, 74.044, 3.175),
    (-95.821, 0, 3.175),
    (-98.491, -74.044, 3.175),
    (-90.481, -57.742, 3.175),
    (81.106, 60.038, 3.175),
    (77.768, 64.414, 3.175),
    (46.264, 65.278, 3.175),
    (73.909, 30.644, 3.175),
    (95.821, 0, 3.175),
    (98.491, 74.044, 3.175),
    (90.481, 57.742, 3.175),
    (79.172, 11.552, 3.175),
    (79.172, -11.552, 3.175),
    (90.481, -57.742, 3.175),
    (98.491, -74.044, 3.175),
    (-81.106, -60.038, 3.175),
    (-77.768, -64.414, 3.175),
    (-46.264, -65.278, 3.175),
    (-73.909, -30.644, 3.175),
    (-77.768, 64.414, 3.175),
    (-81.106, 60.038, 3.175),
    (-73.909, 30.644, 3.175),
    (-46.264, 65.278, 3.175),
]))
fillet.setExpression("Radius", "Params.fillet_radius")
doc.recompute()

fillet2 = body.newObject("PartDesign::Fillet", "Fillet001")
fillet2.Base = (fillet, edges_at(fillet, [
    (0, 105.664, 4.763),
    (105.664, 0, 4.763),
    (0, -105.664, 4.763),
    (-105.664, 0, 4.763),
]))
fillet2.setExpression("Radius", "Params.fillet2_radius")

doc.recompute()
